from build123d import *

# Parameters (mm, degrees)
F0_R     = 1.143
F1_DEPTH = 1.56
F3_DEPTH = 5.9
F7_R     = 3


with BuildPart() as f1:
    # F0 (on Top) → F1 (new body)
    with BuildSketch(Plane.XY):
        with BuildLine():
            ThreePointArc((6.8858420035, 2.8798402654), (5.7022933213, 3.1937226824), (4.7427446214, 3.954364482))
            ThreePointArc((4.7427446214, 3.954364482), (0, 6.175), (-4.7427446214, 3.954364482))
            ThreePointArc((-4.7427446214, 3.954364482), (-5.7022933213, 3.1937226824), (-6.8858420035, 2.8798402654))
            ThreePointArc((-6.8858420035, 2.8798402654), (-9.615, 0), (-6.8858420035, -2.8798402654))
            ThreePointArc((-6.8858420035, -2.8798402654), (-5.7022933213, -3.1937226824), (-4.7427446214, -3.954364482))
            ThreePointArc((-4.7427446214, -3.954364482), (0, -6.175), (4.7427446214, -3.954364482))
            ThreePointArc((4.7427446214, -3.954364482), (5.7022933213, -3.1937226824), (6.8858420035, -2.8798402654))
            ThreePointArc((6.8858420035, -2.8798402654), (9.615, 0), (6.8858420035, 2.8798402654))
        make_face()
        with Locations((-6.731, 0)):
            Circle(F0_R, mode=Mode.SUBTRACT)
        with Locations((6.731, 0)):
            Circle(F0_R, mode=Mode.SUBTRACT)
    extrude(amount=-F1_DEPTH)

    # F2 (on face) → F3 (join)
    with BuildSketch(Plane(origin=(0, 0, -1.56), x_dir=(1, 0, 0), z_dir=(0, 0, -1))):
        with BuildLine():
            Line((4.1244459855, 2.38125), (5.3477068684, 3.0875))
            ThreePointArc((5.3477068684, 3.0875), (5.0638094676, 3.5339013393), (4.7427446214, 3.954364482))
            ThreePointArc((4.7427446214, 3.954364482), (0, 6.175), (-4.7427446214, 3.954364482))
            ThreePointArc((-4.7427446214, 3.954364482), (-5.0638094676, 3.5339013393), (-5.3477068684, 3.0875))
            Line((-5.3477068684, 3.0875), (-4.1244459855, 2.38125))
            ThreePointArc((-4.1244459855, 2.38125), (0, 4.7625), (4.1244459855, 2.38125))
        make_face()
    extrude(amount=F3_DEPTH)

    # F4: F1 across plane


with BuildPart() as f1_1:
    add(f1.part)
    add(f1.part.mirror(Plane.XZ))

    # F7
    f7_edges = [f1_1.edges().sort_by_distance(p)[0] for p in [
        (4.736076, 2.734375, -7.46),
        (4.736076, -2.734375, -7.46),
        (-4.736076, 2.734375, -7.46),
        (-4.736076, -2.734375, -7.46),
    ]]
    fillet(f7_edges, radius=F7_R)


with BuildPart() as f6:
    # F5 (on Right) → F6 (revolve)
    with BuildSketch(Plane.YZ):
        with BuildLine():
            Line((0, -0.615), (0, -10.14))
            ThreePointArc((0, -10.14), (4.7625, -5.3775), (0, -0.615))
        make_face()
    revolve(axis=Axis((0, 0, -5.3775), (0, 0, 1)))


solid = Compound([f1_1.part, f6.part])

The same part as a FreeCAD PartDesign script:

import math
import FreeCAD as App
import Part
import Sketcher
Q = App.Units.Quantity


def edges_at(feature, points):
    """Names of the edges that pass closest to the given points."""
    edges = feature.Shape.Edges
    near = lambda p: min(range(len(edges)), key=lambda i: edges[i].distToShape(Part.Vertex(*p))[0])
    return sorted({f"Edge{near(p) + 1}" for p in points})

doc = App.newDocument("Part")
body = doc.addObject("PartDesign::Body", "Body")

# Sketch on XY plane
sketch1 = body.newObject("Sketcher::SketchObject", "Sketch")
sketch1.AttachmentSupport = (doc.getObject("XY_Plane"), [""])
sketch1.MapMode = "FlatFace"
sketch1.addGeometry([
    Part.ArcOfCircle(Part.Circle(App.Vector(7, 5.9, 0), App.Vector(0, 0, 1), 3), math.radians(-140), math.radians(-93)),  # 0
    Part.ArcOfCircle(Part.Circle(App.Vector(0, 0, 0), App.Vector(0, 0, 1), 6.2), math.radians(40), math.radians(140)),  # 1
    Part.ArcOfCircle(Part.Circle(App.Vector(-7, 5.9, 0), App.Vector(0, 0, 1), 3), math.radians(-87), math.radians(-40)),  # 2
    Part.ArcOfCircle(Part.Circle(App.Vector(-6.7, 0, 0), App.Vector(0, 0, 1), 2.9), math.radians(93), math.radians(267)),  # 3
    Part.ArcOfCircle(Part.Circle(App.Vector(-7, -5.9, 0), App.Vector(0, 0, 1), 3), math.radians(40), math.radians(87)),  # 4
    Part.ArcOfCircle(Part.Circle(App.Vector(0, 0, 0), App.Vector(0, 0, 1), 6.2), math.radians(-140), math.radians(-40)),  # 5
    Part.ArcOfCircle(Part.Circle(App.Vector(7, -5.9, 0), App.Vector(0, 0, 1), 3), math.radians(93), math.radians(140)),  # 6
    Part.ArcOfCircle(Part.Circle(App.Vector(6.7, 0, 0), App.Vector(0, 0, 1), 2.9), math.radians(-87), math.radians(87)),  # 7
    Part.Circle(App.Vector(-6.7, 0, 0), App.Vector(0, 0, 1), 1.1),  # 8
    Part.Circle(App.Vector(6.7, 0, 0), App.Vector(0, 0, 1), 1.1),  # 9
], False)
sketch1.addConstraint([
    Sketcher.Constraint("Tangent", 0, 1, 1, 1),
    Sketcher.Constraint("Tangent", 1, 2, 2, 2),
    Sketcher.Constraint("Tangent", 2, 1, 3, 1),
    Sketcher.Constraint("Tangent", 3, 2, 4, 2),
    Sketcher.Constraint("Tangent", 4, 1, 5, 1),
    Sketcher.Constraint("Tangent", 5, 2, 6, 2),
    Sketcher.Constraint("Tangent", 6, 1, 7, 1),
    Sketcher.Constraint("Tangent", 7, 2, 0, 2),
    Sketcher.Constraint("Coincident", 1, 3, -1, 1),
    Sketcher.Constraint("Coincident", 5, 3, -1, 1),
    Sketcher.Constraint("Coincident", 8, 3, 3, 3),
    Sketcher.Constraint("Coincident", 9, 3, 7, 3),
    Sketcher.Constraint("Equal", 0, 2),
    Sketcher.Constraint("Equal", 2, 4),
    Sketcher.Constraint("Equal", 1, 5),
    Sketcher.Constraint("Equal", 4, 6),
    Sketcher.Constraint("Equal", 3, 7),
    Sketcher.Constraint("Equal", 8, 9),
    Sketcher.Constraint("Symmetric", 3, 3, 7, 3, -1, 1),
    Sketcher.Constraint("PointOnObject", 3, 3, -1),
    Sketcher.Constraint("Radius", 0, 3.0),
    Sketcher.Constraint("Diameter", 8, 2.286),
    Sketcher.Constraint("Radius", 1, 6.175),
    Sketcher.Constraint("Radius", 3, 2.884),
    Sketcher.Constraint("DistanceX", 3, 3, -1, 1, 6.731),
])
pad1 = body.newObject("PartDesign::Pad", "Pad")
pad1.Profile = sketch1
pad1.Length = 1.56
pad1.Reversed = True

# Sketch on XY plane
sketch2 = body.newObject("Sketcher::SketchObject", "Sketch001")
sketch2.AttachmentSupport = (doc.getObject("XY_Plane"), [""])
sketch2.MapMode = "FlatFace"
sketch2.AttachmentOffset = App.Placement(App.Vector(0, 0, -1.56), App.Rotation())
sketch2.addGeometry([
    Part.LineSegment(App.Vector(4.1, -2.4, 0), App.Vector(5.3, -3.1, 0)),  # 0
    Part.ArcOfCircle(Part.Circle(App.Vector(0, 0, 0), App.Vector(0, 0, 1), 6.2), math.radians(-39.82), math.radians(-30)),  # 1
    Part.ArcOfCircle(Part.Circle(App.Vector(0, 0, 0), App.Vector(0, 0, 1), 6.2), math.radians(-140), math.radians(-40)),  # 2
    Part.ArcOfCircle(Part.Circle(App.Vector(0, 0, 0), App.Vector(0, 0, 1), 6.2), math.radians(-150), math.radians(-140.18)),  # 3
    Part.LineSegment(App.Vector(-5.3, -3.1, 0), App.Vector(-4.1, -2.4, 0)),  # 4
    Part.ArcOfCircle(Part.Circle(App.Vector(0, 0, 0), App.Vector(0, 0, 1), 4.8), math.radians(-150), math.radians(-30)),  # 5
], False)
sketch2.addConstraint([
    Sketcher.Constraint("Coincident", 0, 2, 1, 2),
    Sketcher.Constraint("Tangent", 1, 1, 2, 2),
    Sketcher.Constraint("Tangent", 2, 1, 3, 2),
    Sketcher.Constraint("Coincident", 3, 1, 4, 1),
    Sketcher.Constraint("Coincident", 4, 2, 5, 1),
    Sketcher.Constraint("Coincident", 5, 2, 0, 1),
    Sketcher.Constraint("Coincident", 1, 3, -1, 1),
    Sketcher.Constraint("Coincident", 3, 3, -1, 1),
    Sketcher.Constraint("Coincident", 5, 3, -1, 1),
    Sketcher.Constraint("Horizontal", 1, 1, 2, 1),
    Sketcher.Constraint("Horizontal", 0, 2, 3, 1),
    Sketcher.Constraint("Horizontal", 4, 2, 5, 2),
    Sketcher.Constraint("Angle", 0, Q("-30 deg")),
    Sketcher.Constraint("Radius", 1, 6.175),
    Sketcher.Constraint("Radius", 5, 4.7625),
    Sketcher.Constraint("DistanceY", 0, 2, -1, 1, 3.0875),
    Sketcher.Constraint("DistanceX", 2, 1, 4, 2, 0.618299),
])
pad2 = body.newObject("PartDesign::Pad", "Pad001")
pad2.Profile = sketch2
pad2.Length = 5.9
pad2.Reversed = True
body2 = doc.addObject("PartDesign::Body", "Body001")
doc.recompute()

body2.BaseFeature = body
doc.recompute()

mirroring = doc.addObject("Part::Mirroring", "Mirroring")
mirroring.Source = body
mirroring.Base = App.Vector(0, 0, 0)
mirroring.Normal = App.Vector(0, -1, 0)
body3 = doc.addObject("PartDesign::Body", "Body002")
body3.BaseFeature = mirroring
boolean = body2.newObject("PartDesign::Boolean", "Boolean")
boolean.Type = "Fuse"
boolean.addObjects([body3])
doc.recompute()

fillet = body2.newObject("PartDesign::Fillet", "Fillet")
fillet.Base = (boolean, edges_at(boolean, [
    (4.736, 2.734, -7.46),
    (4.736, -2.734, -7.46),
    (-4.736, 2.734, -7.46),
    (-4.736, -2.734, -7.46),
]))
fillet.Radius = 3
body4 = doc.addObject("PartDesign::Body", "Body003")

# Sketch on YZ plane
sketch3 = body4.newObject("Sketcher::SketchObject", "Sketch002")
sketch3.AttachmentSupport = (doc.getObject("YZ_Plane003"), [""])
sketch3.MapMode = "FlatFace"
sketch3.addGeometry([
    Part.LineSegment(App.Vector(0, -0.6, 0), App.Vector(0, -10.1, 0)),
    Part.ArcOfCircle(Part.Circle(App.Vector(0, -5.4, 0), App.Vector(0, 0, 1), 4.8), math.radians(-90), math.radians(90)),
], False)
sketch3.addConstraint([
    Sketcher.Constraint("Coincident", 0, 1, 1, 2),
    Sketcher.Constraint("Coincident", 1, 1, 0, 2),
    Sketcher.Constraint("Vertical", 0),
    Sketcher.Constraint("PointOnObject", 1, 3, -2),
    Sketcher.Constraint("PointOnObject", 0, 1, -2),
    Sketcher.Constraint("Radius", 1, 4.7625),
    Sketcher.Constraint("DistanceY", 1, 1, -1, 1, 10.14),
])
revolution = body4.newObject("PartDesign::Revolution", "Revolution")
revolution.Profile = sketch3
revolution.ReferenceAxis = (sketch3, ["V_Axis"])
revolution.Angle = 360
mirroring.Visibility = False

doc.recompute()
